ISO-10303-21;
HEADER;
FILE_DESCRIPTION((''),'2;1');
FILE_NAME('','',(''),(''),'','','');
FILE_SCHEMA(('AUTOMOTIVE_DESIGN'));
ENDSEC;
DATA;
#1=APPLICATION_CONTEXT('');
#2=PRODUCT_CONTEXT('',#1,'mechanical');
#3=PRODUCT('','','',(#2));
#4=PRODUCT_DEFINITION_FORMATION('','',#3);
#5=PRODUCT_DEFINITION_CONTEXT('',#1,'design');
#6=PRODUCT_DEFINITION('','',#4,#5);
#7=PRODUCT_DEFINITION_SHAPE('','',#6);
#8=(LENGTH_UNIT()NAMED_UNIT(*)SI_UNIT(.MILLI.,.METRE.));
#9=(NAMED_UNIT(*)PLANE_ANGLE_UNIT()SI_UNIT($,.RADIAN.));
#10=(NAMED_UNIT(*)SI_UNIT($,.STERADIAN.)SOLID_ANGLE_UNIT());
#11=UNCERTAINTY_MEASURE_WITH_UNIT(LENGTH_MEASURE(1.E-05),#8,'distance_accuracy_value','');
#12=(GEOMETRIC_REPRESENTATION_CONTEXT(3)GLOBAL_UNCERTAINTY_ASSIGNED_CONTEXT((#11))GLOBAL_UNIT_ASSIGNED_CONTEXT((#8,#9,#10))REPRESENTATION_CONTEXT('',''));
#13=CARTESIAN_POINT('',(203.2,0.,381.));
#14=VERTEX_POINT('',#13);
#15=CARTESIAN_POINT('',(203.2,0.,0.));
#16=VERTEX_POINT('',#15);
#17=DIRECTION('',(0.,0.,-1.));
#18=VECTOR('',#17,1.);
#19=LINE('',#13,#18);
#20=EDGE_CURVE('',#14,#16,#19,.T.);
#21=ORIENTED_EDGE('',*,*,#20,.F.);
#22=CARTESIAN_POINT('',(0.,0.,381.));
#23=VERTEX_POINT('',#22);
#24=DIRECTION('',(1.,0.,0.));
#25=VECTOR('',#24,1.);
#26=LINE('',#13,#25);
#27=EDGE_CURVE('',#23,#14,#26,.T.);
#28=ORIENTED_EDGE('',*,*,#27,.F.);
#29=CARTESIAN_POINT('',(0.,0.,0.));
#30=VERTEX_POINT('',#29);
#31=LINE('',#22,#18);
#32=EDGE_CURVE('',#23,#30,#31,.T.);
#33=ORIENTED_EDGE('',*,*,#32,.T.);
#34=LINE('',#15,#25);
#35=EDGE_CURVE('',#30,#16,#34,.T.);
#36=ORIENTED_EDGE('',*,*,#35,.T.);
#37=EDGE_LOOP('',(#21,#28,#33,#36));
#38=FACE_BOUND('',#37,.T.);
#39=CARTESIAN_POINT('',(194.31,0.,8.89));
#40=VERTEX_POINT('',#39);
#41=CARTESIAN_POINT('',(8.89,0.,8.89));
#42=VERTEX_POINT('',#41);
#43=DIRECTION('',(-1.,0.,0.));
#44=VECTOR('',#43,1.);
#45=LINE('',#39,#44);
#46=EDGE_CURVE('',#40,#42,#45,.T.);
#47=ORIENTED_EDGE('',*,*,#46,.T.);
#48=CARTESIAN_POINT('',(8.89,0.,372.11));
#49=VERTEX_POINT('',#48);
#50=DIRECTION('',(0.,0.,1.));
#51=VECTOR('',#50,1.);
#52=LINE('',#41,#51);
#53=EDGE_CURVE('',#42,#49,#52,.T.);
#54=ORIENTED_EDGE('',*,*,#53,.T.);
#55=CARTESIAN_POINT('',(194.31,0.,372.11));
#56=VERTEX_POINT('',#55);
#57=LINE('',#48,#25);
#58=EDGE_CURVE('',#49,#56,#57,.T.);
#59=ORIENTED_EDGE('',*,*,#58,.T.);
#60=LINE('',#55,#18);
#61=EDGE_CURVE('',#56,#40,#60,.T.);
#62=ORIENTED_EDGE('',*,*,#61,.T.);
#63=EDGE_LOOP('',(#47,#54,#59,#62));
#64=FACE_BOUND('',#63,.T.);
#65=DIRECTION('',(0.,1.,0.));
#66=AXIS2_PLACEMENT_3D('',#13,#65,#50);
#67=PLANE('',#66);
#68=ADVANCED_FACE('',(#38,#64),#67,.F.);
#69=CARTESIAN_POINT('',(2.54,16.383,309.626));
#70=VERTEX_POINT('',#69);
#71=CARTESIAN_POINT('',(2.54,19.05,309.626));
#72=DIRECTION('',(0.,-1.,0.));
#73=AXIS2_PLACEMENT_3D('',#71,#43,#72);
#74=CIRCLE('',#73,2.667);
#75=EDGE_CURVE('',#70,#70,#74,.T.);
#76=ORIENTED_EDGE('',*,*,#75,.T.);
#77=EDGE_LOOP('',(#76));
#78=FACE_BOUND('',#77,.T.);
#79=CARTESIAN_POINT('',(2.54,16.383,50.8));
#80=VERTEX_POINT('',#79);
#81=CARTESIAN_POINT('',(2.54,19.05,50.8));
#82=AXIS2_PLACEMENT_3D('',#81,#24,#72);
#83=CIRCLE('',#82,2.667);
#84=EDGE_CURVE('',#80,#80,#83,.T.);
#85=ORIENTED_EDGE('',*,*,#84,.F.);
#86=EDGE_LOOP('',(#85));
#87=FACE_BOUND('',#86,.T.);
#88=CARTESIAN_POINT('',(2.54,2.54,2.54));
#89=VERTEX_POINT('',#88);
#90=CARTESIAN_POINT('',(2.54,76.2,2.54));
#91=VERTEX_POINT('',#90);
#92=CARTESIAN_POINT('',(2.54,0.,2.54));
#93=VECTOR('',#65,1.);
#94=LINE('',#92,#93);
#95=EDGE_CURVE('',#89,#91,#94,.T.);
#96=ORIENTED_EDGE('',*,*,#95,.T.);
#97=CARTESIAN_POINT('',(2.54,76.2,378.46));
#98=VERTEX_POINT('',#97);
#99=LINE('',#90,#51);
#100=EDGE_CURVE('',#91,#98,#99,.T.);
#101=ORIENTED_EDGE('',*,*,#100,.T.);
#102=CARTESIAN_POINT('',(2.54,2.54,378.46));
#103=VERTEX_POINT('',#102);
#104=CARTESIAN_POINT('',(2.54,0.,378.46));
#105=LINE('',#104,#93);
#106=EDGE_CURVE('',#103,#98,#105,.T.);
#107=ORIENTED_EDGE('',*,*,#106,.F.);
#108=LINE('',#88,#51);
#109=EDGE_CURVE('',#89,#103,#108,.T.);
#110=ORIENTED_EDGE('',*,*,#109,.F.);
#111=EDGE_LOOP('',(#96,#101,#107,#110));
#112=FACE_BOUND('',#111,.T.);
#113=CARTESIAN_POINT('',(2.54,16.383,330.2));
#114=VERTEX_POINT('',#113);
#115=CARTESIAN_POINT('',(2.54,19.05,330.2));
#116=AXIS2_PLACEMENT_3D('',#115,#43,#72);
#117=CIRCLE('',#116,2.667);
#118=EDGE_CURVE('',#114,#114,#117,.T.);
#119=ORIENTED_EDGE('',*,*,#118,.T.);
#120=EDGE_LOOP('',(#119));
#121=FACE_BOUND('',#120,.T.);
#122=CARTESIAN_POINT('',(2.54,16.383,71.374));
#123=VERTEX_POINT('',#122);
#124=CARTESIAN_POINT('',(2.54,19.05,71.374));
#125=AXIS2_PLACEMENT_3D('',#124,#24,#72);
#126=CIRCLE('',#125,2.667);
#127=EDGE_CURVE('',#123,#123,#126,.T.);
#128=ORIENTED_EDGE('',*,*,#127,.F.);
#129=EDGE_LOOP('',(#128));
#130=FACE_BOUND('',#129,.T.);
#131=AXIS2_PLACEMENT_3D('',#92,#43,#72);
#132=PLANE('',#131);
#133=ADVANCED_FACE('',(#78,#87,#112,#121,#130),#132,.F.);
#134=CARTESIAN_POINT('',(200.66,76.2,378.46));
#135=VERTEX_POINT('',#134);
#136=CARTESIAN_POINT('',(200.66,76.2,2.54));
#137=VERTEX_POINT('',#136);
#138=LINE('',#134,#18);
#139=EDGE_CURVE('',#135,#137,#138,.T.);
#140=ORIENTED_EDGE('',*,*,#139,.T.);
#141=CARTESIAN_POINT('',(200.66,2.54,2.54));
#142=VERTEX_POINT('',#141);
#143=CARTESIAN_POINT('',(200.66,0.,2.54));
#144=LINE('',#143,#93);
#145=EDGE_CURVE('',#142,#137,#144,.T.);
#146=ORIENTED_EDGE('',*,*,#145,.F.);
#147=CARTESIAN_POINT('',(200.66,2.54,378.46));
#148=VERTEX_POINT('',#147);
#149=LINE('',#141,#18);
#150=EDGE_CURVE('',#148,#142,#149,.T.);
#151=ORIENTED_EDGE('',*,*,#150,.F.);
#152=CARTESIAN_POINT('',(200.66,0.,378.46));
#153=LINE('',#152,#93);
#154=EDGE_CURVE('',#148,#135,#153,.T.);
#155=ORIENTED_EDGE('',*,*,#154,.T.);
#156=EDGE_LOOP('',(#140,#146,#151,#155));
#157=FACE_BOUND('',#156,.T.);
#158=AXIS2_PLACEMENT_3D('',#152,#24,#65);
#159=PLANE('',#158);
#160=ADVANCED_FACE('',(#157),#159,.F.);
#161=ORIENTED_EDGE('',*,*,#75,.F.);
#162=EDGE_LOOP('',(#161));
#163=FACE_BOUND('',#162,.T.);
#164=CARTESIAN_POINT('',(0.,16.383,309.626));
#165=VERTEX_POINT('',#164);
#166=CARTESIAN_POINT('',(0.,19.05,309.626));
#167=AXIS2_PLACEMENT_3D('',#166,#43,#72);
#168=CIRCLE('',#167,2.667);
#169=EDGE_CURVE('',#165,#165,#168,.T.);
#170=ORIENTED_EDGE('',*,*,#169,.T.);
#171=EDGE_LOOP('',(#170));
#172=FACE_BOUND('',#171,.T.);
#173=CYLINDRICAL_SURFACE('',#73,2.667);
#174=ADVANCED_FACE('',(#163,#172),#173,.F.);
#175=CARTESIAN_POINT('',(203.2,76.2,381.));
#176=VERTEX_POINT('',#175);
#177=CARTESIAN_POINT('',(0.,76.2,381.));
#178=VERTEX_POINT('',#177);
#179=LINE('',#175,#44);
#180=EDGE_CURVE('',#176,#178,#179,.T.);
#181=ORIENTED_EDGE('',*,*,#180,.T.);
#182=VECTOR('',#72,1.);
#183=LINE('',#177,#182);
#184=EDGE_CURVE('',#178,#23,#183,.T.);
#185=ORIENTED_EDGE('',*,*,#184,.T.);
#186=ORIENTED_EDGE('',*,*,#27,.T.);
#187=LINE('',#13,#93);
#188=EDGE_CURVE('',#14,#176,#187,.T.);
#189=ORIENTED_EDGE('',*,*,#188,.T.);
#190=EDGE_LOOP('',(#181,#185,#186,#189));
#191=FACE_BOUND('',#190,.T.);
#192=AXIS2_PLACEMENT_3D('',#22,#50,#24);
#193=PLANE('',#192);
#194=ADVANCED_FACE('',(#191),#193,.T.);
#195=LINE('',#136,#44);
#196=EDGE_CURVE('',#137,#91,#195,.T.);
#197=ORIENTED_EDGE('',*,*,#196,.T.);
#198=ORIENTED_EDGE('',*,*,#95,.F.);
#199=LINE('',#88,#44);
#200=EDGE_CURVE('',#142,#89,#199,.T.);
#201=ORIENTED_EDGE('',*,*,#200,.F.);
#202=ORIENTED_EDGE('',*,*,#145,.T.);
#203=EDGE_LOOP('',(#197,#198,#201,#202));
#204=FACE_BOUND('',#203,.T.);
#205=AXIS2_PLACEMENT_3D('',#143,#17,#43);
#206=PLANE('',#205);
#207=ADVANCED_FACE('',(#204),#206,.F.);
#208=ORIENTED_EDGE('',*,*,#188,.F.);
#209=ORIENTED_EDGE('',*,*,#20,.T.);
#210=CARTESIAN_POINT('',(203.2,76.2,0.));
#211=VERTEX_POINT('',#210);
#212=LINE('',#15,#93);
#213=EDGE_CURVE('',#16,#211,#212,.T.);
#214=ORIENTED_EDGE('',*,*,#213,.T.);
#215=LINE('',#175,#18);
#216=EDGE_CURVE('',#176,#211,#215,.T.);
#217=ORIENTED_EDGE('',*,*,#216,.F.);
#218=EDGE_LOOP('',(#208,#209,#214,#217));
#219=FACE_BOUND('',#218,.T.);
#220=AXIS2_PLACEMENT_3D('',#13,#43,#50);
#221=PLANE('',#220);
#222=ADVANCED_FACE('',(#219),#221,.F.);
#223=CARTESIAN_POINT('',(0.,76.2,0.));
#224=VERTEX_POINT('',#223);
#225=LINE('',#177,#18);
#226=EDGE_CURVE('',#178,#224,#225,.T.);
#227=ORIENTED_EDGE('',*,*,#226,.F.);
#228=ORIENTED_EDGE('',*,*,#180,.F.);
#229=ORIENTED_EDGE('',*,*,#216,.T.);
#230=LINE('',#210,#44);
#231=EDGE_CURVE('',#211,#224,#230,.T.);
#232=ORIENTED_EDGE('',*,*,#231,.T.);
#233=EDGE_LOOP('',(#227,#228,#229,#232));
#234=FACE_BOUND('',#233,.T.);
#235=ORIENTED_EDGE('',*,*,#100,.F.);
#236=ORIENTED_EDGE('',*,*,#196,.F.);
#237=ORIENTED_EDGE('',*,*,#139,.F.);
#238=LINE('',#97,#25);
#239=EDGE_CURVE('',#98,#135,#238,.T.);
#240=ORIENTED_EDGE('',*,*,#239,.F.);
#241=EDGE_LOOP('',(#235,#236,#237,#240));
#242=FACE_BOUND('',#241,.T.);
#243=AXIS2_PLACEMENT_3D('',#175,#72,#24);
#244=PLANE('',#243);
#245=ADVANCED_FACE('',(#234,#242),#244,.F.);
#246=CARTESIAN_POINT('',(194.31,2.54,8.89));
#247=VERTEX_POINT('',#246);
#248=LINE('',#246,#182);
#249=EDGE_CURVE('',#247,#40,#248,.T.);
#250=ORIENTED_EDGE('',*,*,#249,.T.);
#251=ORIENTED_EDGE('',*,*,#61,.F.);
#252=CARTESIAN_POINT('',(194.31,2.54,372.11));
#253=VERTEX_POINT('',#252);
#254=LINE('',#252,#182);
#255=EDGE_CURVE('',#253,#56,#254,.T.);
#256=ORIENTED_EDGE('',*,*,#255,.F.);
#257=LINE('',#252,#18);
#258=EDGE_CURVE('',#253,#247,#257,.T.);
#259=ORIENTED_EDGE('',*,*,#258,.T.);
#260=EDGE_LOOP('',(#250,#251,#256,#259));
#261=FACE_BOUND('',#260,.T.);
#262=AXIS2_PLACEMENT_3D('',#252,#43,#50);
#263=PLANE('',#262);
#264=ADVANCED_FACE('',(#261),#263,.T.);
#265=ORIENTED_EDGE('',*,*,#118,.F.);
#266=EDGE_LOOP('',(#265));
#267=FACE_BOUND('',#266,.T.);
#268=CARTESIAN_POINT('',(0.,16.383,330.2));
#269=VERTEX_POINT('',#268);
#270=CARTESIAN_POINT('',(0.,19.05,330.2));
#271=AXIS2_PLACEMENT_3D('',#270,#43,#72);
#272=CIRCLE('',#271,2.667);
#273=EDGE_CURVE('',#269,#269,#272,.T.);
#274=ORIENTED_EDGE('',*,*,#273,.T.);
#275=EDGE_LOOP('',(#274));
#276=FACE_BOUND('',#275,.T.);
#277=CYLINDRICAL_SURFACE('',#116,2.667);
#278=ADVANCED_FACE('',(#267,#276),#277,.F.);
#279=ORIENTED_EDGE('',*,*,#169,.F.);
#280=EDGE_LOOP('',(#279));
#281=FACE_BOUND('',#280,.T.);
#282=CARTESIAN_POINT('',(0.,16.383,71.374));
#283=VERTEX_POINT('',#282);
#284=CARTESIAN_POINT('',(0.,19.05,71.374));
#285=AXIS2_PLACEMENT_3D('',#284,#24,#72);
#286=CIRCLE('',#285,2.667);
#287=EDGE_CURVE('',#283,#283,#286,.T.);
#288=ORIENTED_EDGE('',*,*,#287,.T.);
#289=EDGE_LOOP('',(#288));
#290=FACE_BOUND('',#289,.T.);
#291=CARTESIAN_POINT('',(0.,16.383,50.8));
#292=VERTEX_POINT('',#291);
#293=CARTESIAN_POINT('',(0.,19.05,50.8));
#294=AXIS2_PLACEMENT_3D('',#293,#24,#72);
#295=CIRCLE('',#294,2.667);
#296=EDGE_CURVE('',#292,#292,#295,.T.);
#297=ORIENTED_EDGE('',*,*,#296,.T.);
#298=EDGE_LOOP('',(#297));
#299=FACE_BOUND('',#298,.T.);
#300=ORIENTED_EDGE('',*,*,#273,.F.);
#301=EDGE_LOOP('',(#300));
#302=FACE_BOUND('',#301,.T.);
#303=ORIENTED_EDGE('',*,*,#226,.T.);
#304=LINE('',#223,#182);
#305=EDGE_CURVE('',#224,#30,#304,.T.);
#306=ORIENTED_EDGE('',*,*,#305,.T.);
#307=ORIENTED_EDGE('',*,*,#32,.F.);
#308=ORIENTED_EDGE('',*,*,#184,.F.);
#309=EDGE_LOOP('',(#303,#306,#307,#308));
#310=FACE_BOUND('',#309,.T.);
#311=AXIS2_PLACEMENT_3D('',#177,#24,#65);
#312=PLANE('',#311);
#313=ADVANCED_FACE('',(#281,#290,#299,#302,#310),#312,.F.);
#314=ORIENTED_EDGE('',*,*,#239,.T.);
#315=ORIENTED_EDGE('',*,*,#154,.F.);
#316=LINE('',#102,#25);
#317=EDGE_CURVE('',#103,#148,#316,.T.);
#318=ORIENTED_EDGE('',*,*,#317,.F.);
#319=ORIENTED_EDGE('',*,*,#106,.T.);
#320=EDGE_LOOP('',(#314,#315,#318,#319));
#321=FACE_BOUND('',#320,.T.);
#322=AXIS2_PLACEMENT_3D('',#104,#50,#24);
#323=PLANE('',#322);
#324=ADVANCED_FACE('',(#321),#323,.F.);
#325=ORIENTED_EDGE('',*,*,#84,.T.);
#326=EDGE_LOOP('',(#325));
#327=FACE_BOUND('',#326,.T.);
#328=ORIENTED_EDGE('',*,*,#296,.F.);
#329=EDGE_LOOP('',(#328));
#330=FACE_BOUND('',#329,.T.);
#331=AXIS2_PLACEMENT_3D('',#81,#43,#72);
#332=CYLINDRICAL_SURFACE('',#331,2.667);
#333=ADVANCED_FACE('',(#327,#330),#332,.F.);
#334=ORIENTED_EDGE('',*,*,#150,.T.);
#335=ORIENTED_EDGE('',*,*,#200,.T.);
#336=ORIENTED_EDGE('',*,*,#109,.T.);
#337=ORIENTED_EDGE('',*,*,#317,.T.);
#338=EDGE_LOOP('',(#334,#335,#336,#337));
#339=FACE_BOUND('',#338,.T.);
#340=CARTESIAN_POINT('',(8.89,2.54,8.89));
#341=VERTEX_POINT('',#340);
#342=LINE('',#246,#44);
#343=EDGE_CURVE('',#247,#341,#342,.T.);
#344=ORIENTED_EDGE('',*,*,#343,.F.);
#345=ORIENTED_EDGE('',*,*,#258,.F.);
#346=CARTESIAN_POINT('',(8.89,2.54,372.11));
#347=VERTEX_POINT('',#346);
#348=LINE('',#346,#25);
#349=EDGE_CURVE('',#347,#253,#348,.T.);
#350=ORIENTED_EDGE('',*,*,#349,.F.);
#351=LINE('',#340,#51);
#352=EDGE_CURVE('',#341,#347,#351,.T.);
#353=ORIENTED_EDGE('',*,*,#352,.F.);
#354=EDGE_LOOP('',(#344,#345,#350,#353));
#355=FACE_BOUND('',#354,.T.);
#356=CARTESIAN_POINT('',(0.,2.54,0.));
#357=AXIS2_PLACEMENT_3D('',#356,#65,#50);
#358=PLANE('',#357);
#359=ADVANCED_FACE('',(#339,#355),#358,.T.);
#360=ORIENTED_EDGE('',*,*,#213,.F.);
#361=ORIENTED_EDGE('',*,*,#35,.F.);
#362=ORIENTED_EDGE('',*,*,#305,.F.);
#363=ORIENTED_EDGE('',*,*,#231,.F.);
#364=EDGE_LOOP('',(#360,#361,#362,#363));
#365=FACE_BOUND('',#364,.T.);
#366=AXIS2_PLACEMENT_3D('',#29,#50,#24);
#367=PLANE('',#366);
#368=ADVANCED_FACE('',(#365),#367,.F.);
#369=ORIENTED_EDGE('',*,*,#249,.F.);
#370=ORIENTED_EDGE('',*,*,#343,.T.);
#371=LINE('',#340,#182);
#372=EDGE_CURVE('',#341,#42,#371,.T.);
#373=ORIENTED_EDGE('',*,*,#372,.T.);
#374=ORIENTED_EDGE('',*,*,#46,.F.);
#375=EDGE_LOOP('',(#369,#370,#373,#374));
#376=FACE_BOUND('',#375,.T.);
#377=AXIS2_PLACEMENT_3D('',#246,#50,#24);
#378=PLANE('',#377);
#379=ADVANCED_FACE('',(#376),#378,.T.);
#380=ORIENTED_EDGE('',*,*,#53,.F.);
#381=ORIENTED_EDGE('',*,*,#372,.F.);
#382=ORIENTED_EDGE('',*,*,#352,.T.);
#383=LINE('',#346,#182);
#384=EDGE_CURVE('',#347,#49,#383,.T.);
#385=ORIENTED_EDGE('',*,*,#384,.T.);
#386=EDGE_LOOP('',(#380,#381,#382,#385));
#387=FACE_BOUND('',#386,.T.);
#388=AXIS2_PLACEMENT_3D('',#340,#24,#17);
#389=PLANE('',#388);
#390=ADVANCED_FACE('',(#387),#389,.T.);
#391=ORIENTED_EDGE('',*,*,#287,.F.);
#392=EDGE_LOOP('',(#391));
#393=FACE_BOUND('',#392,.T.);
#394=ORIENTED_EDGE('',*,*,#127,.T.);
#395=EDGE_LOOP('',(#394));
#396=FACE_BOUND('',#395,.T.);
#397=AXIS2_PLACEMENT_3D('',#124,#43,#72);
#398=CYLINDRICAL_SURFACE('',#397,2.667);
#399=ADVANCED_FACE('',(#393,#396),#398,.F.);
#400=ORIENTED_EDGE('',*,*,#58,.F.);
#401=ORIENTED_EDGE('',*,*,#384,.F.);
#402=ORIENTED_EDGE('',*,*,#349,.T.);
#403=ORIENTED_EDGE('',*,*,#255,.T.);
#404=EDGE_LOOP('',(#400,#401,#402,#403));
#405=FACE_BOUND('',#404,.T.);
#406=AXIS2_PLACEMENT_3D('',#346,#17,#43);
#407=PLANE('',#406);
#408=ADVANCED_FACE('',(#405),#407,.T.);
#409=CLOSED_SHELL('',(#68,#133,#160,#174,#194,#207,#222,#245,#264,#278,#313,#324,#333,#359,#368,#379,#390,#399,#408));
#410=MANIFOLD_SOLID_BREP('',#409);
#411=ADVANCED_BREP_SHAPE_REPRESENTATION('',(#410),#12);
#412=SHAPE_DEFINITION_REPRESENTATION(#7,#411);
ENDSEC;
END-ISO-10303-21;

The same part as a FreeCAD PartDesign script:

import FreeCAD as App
import Part
import Sketcher
from FreeCAD import Vector
Q = App.Units.Quantity


def add_polygon(sketch, points):
    """Adds a closed chain of lines whose ends are joined by coincident constraints."""
    first, n = sketch.GeometryCount, len(points)
    for a, b in zip(points, points[1:] + points[:1]):
        sketch.addGeometry(Part.LineSegment(App.Vector(*a, 0), App.Vector(*b, 0)), False)
    for i in range(n):
        sketch.addConstraint(Sketcher.Constraint("Coincident", first + i, 2, first + (i + 1) % n, 1))

doc = App.newDocument("Part")
params = doc.addObject("Spreadsheet::Sheet", "Params")
for row, (alias, value) in enumerate([
    ("sketch1_width", "8 in"),
    ("sketch1_height", "3 in"),
    ("pad1_length", "15 in"),
    ("sketch2_width", "7.8 in"),
    ("sketch2_height", "14.8 in"),
    ("sketch3_width", "7.8 in"),
    ("sketch3_width2", "7.3 in"),
    ("sketch3_height", "14.8 in"),
    ("sketch3_height2", "14.3 in"),
    ("pad2_length", "0.1 in"),
    ("sketch4_diameter", "0.21 in"),
    ("pocket2_length", "0.1 in"),
], start=1):
    params.set(f"A{row}", alias)
    params.set(f"B{row}", "=" + value)
    params.setAlias(f"B{row}", alias)

body = doc.addObject("PartDesign::Body", "Body")

# Sketch on XY plane
sketch1 = doc.addObject("Sketcher::SketchObject", "Sketch")
body.addObject(sketch1)
sketch1.AttachmentSupport = (doc.XY_Plane, [""])
sketch1.MapMode = "FlatFace"
add_polygon(sketch1, [(0, 76), (0, 0), (203, 0), (203, 76)])  # lines 0-3
sketch1.addConstraint([
    Sketcher.Constraint("Vertical", 0),
    Sketcher.Constraint("Horizontal", 1),
    Sketcher.Constraint("Vertical", 2),
    Sketcher.Constraint("Horizontal", 3),
    Sketcher.Constraint("Coincident", 0, 2, -1, 1),
    Sketcher.Constraint("DistanceX", 1, 1, 1, 2, Q("8 in")),
    Sketcher.Constraint("DistanceY", 0, 2, 0, 1, Q("3 in")),
])
sketch1.setExpression("Constraints[9]", "Params.sketch1_width")
sketch1.setExpression("Constraints[10]", "Params.sketch1_height")
pad1 = doc.addObject("PartDesign::Pad", "Pad")
body.addObject(pad1)
pad1.Profile = sketch1
pad1.setExpression("Length", "Params.pad1_length")

# Sketch on XZ plane
sketch2 = doc.addObject("Sketcher::SketchObject", "Sketch001")
body.addObject(sketch2)
sketch2.AttachmentSupport = (doc.XZ_Plane, [""])
sketch2.MapMode = "FlatFace"
sketch2.AttachmentOffset = App.Placement(Vector(0, 0, -3 * 25.4), App.Rotation())
add_polygon(sketch2, [(3, 3), (3, 378), (201, 378), (201, 3)])  # lines 0-3
sketch2.addConstraint([
    Sketcher.Constraint("Vertical", 0),
    Sketcher.Constraint("Horizontal", 1),
    Sketcher.Constraint("Vertical", 2),
    Sketcher.Constraint("Horizontal", 3),
    Sketcher.Constraint("DistanceX", 1, 1, 1, 2, Q("7.8 in")),
    Sketcher.Constraint("DistanceY", 0, 1, 0, 2, Q("14.8 in")),
    Sketcher.Constraint("DistanceX", -1, 1, 0, 2, Q("0.1 in")),
    Sketcher.Constraint("DistanceY", -1, 1, 0, 2, Q("14.9 in")),
])
sketch2.setExpression("Constraints[8]", "Params.sketch2_width")
sketch2.setExpression("Constraints[9]", "Params.sketch2_height")
pocket1 = doc.addObject("PartDesign::Pocket", "Pocket")
body.addObject(pocket1)
pocket1.Profile = sketch2
pocket1.Type = "ThroughAll"
pocket1.Reversed = True

# Sketch on XZ plane
sketch3 = doc.addObject("Sketcher::SketchObject", "Sketch002")
body.addObject(sketch3)
sketch3.AttachmentSupport = (doc.XZ_Plane, [""])
sketch3.MapMode = "FlatFace"
add_polygon(sketch3, [(3, 3), (3, 378), (201, 378), (201, 3)])  # lines 0-3
add_polygon(sketch3, [(194, 372), (9, 372), (9, 9), (194, 9)])  # lines 4-7
sketch3.addConstraint([
    Sketcher.Constraint("Vertical", 0),
    Sketcher.Constraint("Horizontal", 1),
    Sketcher.Constraint("Vertical", 2),
    Sketcher.Constraint("Horizontal", 3),
    Sketcher.Constraint("Horizontal", 4),
    Sketcher.Constraint("Vertical", 5),
    Sketcher.Constraint("Horizontal", 6),
    Sketcher.Constraint("Vertical", 7),
    Sketcher.Constraint("DistanceX", 1, 1, 1, 2, Q("7.8 in")),
    Sketcher.Constraint("DistanceX", 4, 2, 4, 1, Q("7.3 in")),
    Sketcher.Constraint("DistanceY", 0, 1, 0, 2, Q("14.8 in")),
    Sketcher.Constraint("DistanceY", 5, 2, 5, 1, Q("14.3 in")),
    Sketcher.Constraint("DistanceX", -1, 1, 0, 2, Q("0.1 in")),
    Sketcher.Constraint("DistanceY", -1, 1, 0, 2, Q("14.9 in")),
    Sketcher.Constraint("DistanceX", -1, 1, 4, 2, Q("0.35 in")),
    Sketcher.Constraint("DistanceY", -1, 1, 4, 2, Q("14.65 in")),
])
sketch3.setExpression("Constraints[16]", "Params.sketch3_width")
sketch3.setExpression("Constraints[17]", "Params.sketch3_width2")
sketch3.setExpression("Constraints[18]", "Params.sketch3_height")
sketch3.setExpression("Constraints[19]", "Params.sketch3_height2")
pad2 = doc.addObject("PartDesign::Pad", "Pad001")
body.addObject(pad2)
pad2.Profile = sketch3
pad2.setExpression("Length", "Params.pad2_length")
pad2.Reversed = True

# Sketch on YZ plane
sketch4 = doc.addObject("Sketcher::SketchObject", "Sketch003")
body.addObject(sketch4)
sketch4.AttachmentSupport = (doc.YZ_Plane, [""])
sketch4.MapMode = "FlatFace"
sketch4.addGeometry([
    Part.Circle(Vector(19.1, 309.6, 0), Vector(0, 0, 1), 2.7),
    Part.Circle(Vector(19.1, 330.2, 0), Vector(0, 0, 1), 2.7),
], False)
sketch4.addConstraint([
    Sketcher.Constraint("Equal", 0, 1),
    Sketcher.Constraint("Vertical", 0, 3, 1, 3),
    Sketcher.Constraint("Diameter", 0, Q("0.21 in")),
    Sketcher.Constraint("DistanceY", -1, 1, 1, 3, Q("13 in")),
    Sketcher.Constraint("DistanceX", -1, 1, 0, 3, Q("0.75 in")),
    Sketcher.Constraint("DistanceY", -1, 1, 0, 3, Q("12.19 in")),
])
sketch4.setExpression("Constraints[2]", "Params.sketch4_diameter")
pocket2 = doc.addObject("PartDesign::Pocket", "Pocket001")
body.addObject(pocket2)
pocket2.Profile = sketch4
pocket2.setExpression("Length", "Params.pocket2_length")
pocket2.Reversed = True
doc.recompute()

datumplane = doc.addObject("PartDesign::Plane", "DatumPlane")
body.addObject(datumplane)
datumplane.AttachmentSupport = (doc.XY_Plane, [""])
datumplane.MapMode = "FlatFace"
datumplane.AttachmentOffset = App.Placement(Vector(0, 0, 7.5 * 25.4), App.Rotation())
mirrored = doc.addObject("PartDesign::Mirrored", "Mirrored")
body.addObject(mirrored)
mirrored.Originals = [pocket2]
mirrored.MirrorPlane = (datumplane, [""])
body.Tip = mirrored

doc.recompute()
